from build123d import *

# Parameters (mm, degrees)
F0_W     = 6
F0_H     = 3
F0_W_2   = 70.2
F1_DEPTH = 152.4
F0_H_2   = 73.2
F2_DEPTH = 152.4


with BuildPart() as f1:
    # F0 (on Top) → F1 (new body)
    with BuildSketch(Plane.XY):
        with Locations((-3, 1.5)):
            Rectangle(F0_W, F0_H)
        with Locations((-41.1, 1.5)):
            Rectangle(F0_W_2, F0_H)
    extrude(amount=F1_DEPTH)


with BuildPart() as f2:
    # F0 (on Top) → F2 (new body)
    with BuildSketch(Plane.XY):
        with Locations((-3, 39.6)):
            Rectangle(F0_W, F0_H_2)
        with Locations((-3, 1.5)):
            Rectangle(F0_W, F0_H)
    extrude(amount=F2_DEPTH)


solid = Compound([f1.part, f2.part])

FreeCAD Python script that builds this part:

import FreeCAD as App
import Part
import Sketcher
Q = App.Units.Quantity

doc = App.newDocument("Part")
body = doc.addObject("PartDesign::Body", "Body")

# Sketch on XY plane
sketch1 = doc.addObject("Sketcher::SketchObject", "Sketch")
body.addObject(sketch1)
sketch1.AttachmentSupport = (doc.XY_Plane, [""])
sketch1.MapMode = "FlatFace"
sketch1.addGeometry([
    Part.LineSegment(App.Vector(0, 0, 0), App.Vector(0, 3, 0)),
    Part.LineSegment(App.Vector(0, 3, 0), App.Vector(-76.2, 3, 0)),
    Part.LineSegment(App.Vector(-76.2, 3, 0), App.Vector(-76.2, 0, 0)),
    Part.LineSegment(App.Vector(-76.2, 0, 0), App.Vector(0, 0, 0)),
], False)
sketch1.addConstraint([
    Sketcher.Constraint("Coincident", 0, 2, 1, 1),
    Sketcher.Constraint("Coincident", 1, 2, 2, 1),
    Sketcher.Constraint("Coincident", 2, 2, 3, 1),
    Sketcher.Constraint("Coincident", 3, 2, 0, 1),
    Sketcher.Constraint("Vertical", 0),
    Sketcher.Constraint("Horizontal", 1),
    Sketcher.Constraint("Vertical", 2),
    Sketcher.Constraint("Horizontal", 3),
    Sketcher.Constraint("Coincident", 3, 2, -1, 1),
    Sketcher.Constraint("DistanceY", 0, 1, 0, 2, Q("3 mm")),
    Sketcher.Constraint("DistanceX", 1, 2, 1, 1, Q("76.2 mm")),
])
pad1 = doc.addObject("PartDesign::Pad", "Pad")
body.addObject(pad1)
pad1.Profile = sketch1
pad1.Length = 152.4
body2 = doc.addObject("PartDesign::Body", "Body001")

# Sketch on XY plane
sketch2 = doc.addObject("Sketcher::SketchObject", "Sketch001")
body2.addObject(sketch2)
sketch2.AttachmentSupport = (doc.getObject("XY_Plane001"), [""])
sketch2.MapMode = "FlatFace"
sketch2.addGeometry([
    Part.LineSegment(App.Vector(-6, 76.2, 0), App.Vector(-6, 0, 0)),
    Part.LineSegment(App.Vector(-6, 0, 0), App.Vector(0, 0, 0)),
    Part.LineSegment(App.Vector(0, 0, 0), App.Vector(0, 76.2, 0)),
    Part.LineSegment(App.Vector(0, 76.2, 0), App.Vector(-6, 76.2, 0)),
], False)
sketch2.addConstraint([
    Sketcher.Constraint("Coincident", 0, 2, 1, 1),
    Sketcher.Constraint("Coincident", 1, 2, 2, 1),
    Sketcher.Constraint("Coincident", 2, 2, 3, 1),
    Sketcher.Constraint("Coincident", 3, 2, 0, 1),
    Sketcher.Constraint("Vertical", 0),
    Sketcher.Constraint("Horizontal", 1),
    Sketcher.Constraint("Vertical", 2),
    Sketcher.Constraint("Horizontal", 3),
    Sketcher.Constraint("Coincident", 1, 2, -1, 1),
    Sketcher.Constraint("DistanceX", 1, 1, 1, 2, Q("6 mm")),
    Sketcher.Constraint("DistanceY", 0, 2, 0, 1, Q("76.2 mm")),
])
pad2 = doc.addObject("PartDesign::Pad", "Pad001")
body2.addObject(pad2)
pad2.Profile = sketch2
pad2.Length = 152.4

doc.recompute()
